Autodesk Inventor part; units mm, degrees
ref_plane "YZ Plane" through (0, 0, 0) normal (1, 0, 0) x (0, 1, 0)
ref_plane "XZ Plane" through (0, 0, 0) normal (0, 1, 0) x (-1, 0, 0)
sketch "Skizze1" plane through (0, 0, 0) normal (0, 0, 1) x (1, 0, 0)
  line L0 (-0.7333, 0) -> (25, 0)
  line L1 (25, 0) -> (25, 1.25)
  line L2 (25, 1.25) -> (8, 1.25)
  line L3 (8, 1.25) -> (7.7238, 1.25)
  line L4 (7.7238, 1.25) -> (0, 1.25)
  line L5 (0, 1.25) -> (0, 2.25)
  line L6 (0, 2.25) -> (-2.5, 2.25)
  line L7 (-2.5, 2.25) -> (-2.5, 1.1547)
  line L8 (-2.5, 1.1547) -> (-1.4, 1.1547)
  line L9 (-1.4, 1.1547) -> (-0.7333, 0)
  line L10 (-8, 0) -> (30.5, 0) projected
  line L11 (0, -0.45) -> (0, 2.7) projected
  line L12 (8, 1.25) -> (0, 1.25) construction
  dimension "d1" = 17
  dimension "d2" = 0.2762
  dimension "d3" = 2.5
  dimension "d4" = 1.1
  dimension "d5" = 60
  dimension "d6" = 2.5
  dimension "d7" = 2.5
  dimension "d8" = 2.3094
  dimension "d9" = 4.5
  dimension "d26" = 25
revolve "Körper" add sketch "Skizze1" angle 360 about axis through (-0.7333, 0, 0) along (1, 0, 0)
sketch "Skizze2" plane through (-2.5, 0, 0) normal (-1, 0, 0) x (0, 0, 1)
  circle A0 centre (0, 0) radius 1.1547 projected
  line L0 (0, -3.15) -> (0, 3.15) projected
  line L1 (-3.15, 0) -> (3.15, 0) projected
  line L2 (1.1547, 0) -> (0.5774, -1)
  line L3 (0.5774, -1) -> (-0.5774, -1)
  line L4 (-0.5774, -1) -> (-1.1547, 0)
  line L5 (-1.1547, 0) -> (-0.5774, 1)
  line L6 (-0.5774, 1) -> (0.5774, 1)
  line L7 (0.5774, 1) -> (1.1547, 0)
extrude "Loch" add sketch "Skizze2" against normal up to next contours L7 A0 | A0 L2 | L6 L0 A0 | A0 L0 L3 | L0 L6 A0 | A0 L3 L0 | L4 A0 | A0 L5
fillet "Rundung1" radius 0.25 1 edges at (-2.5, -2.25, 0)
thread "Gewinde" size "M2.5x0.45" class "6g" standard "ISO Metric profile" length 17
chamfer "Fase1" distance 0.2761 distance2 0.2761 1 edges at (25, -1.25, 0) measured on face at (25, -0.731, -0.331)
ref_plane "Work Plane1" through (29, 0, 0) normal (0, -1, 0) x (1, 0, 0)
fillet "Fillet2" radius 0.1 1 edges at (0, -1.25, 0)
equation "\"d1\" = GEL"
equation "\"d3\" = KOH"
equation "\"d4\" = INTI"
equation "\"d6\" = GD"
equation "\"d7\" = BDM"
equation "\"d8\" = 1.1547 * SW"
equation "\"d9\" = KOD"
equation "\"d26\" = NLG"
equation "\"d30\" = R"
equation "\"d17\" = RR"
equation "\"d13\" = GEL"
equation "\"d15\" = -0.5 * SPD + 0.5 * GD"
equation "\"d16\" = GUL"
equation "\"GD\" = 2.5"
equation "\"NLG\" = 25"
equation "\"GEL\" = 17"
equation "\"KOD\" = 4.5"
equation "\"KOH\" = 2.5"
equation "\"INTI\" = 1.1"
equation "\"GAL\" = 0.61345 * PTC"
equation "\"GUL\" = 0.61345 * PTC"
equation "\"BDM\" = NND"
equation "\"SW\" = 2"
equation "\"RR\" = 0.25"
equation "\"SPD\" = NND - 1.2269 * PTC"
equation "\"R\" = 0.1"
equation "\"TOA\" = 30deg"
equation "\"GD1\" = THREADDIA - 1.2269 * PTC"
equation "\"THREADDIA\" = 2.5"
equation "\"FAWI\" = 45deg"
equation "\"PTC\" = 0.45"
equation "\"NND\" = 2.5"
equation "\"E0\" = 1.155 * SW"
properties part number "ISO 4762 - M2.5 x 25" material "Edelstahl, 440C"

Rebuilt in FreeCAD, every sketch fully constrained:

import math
import FreeCAD as App
import Part
import Sketcher
from FreeCAD import Vector
Q = App.Units.Quantity


def edges_at(feature, points):
    """Names of the edges that pass closest to the given points."""
    edges = feature.Shape.Edges
    near = lambda p: min(range(len(edges)), key=lambda i: edges[i].distToShape(Part.Vertex(*p))[0])
    return sorted({f"Edge{near(p) + 1}" for p in points})


def add_polygon(sketch, points):
    """Adds a closed chain of lines whose ends are joined by coincident constraints."""
    first, n = sketch.GeometryCount, len(points)
    for a, b in zip(points, points[1:] + points[:1]):
        sketch.addGeometry(Part.LineSegment(App.Vector(*a, 0), App.Vector(*b, 0)), False)
    for i in range(n):
        sketch.addConstraint(Sketcher.Constraint("Coincident", first + i, 2, first + (i + 1) % n, 1))

doc = App.newDocument("Part")
params = doc.addObject("Spreadsheet::Sheet", "Params")
for row, (alias, value) in enumerate([
    ("sketch1_width", "25 mm"),
    ("sketch1_width2", "2.5 mm"),
    ("sketch1_width3", "1.1 mm"),
    ("sketch1_height", "1 mm"),
    ("sketch1_height2", "1.25 mm"),
    ("revolution_angle", "360 deg"),
    ("pad1_length", "1.1893 mm"),
    ("fillet_radius", "0.25 mm"),
    ("chamfer_size", "0.2761 mm"),
    ("chamfer_size2", "0.2761 mm"),
    ("fillet2_radius", "0.1 mm"),
], start=1):
    params.set(f"A{row}", alias)
    params.set(f"B{row}", "=" + value)
    params.setAlias(f"B{row}", alias)

body = doc.addObject("PartDesign::Body", "Body")

# Sketch on XY plane
sketch1 = body.newObject("Sketcher::SketchObject", "Sketch")
sketch1.AttachmentSupport = (doc.getObject("XY_Plane"), [""])
sketch1.MapMode = "FlatFace"
add_polygon(sketch1, [(-1.4, 1.1547), (-0.7333, 0), (25, 0), (25, 1.25), (0, 1.25), (0, 2.25), (-2.5, 2.25), (-2.5, 1.1547)])  # lines 0-7
sketch1.addConstraint([
    Sketcher.Constraint("Horizontal", 1),
    Sketcher.Constraint("Vertical", 2),
    Sketcher.Constraint("Horizontal", 3),
    Sketcher.Constraint("Vertical", 4),
    Sketcher.Constraint("Horizontal", 5),
    Sketcher.Constraint("Vertical", 6),
    Sketcher.Constraint("Horizontal", 7),
    Sketcher.Constraint("PointOnObject", 0, 2, -1),
    Sketcher.Constraint("PointOnObject", 3, 2, -2),
    Sketcher.Constraint("DistanceX", 3, 2, 3, 1, Q("25 mm")),
    Sketcher.Constraint("DistanceX", 5, 2, 5, 1, Q("2.5 mm")),
    Sketcher.Constraint("DistanceX", 7, 1, 7, 2, Q("1.1 mm")),
    Sketcher.Constraint("DistanceY", 4, 1, 4, 2, Q("1 mm")),
    Sketcher.Constraint("DistanceY", 2, 1, 2, 2, Q("1.25 mm")),
    Sketcher.Constraint("DistanceX", 1, 1, 1, 2, Q("25.7333 mm")),
    Sketcher.Constraint("DistanceY", 6, 2, 6, 1, Q("1.0953 mm")),
])
sketch1.setExpression("Constraints[17]", "Params.sketch1_width")
sketch1.setExpression("Constraints[18]", "Params.sketch1_width2")
sketch1.setExpression("Constraints[19]", "Params.sketch1_width3")
sketch1.setExpression("Constraints[20]", "Params.sketch1_height")
sketch1.setExpression("Constraints[21]", "Params.sketch1_height2")
revolution = body.newObject("PartDesign::Revolution", "Revolution")
revolution.Profile = sketch1
revolution.ReferenceAxis = (sketch1, ["H_Axis"])
revolution.setExpression("Angle", "Params.revolution_angle")

# Sketch on YZ plane
sketch2 = body.newObject("Sketcher::SketchObject", "Sketch001")
sketch2.AttachmentSupport = (doc.getObject("YZ_Plane"), [""])
sketch2.MapMode = "FlatFace"
sketch2.AttachmentOffset = App.Placement(Vector(0, 0, -2.5), App.Rotation())
sketch2.addGeometry([
    Part.LineSegment(Vector(1, 0.5774, 0), Vector(0, 1.1547, 0)),  # 0
    Part.ArcOfCircle(Part.Circle(Vector(0, 0, 0), Vector(0, 0, 1), 1.1547), math.radians(30.002137), math.radians(90)),  # 1
    Part.ArcOfCircle(Part.Circle(Vector(0, 0, 0), Vector(0, 0, 1), 1.1547), math.radians(90), math.radians(149.997863)),  # 2
    Part.LineSegment(Vector(0, 1.1547, 0), Vector(-1, 0.5774, 0)),  # 3
    Part.ArcOfCircle(Part.Circle(Vector(0, 0, 0), Vector(0, 0, 1), 1.1547), math.radians(-30.002137), math.radians(30.002137)),  # 4
    Part.LineSegment(Vector(1, 0.5774, 0), Vector(1, -0.5774, 0)),  # 5
    Part.LineSegment(Vector(-1, 0.5774, 0), Vector(-1, -0.5774, 0)),  # 6
    Part.ArcOfCircle(Part.Circle(Vector(0, 0, 0), Vector(0, 0, 1), 1.1547), math.radians(149.997863), math.radians(210.002137)),  # 7
    Part.LineSegment(Vector(-1, -0.5774, 0), Vector(0, -1.1547, 0)),  # 8
    Part.ArcOfCircle(Part.Circle(Vector(0, 0, 0), Vector(0, 0, 1), 1.1547), math.radians(-149.997863), math.radians(-90)),  # 9
    Part.ArcOfCircle(Part.Circle(Vector(0, 0, 0), Vector(0, 0, 1), 1.1547), math.radians(-90), math.radians(-30.002137)),  # 10
    Part.LineSegment(Vector(0, -1.1547, 0), Vector(1, -0.5774, 0)),  # 11
], False)
sketch2.addConstraint([
    Sketcher.Constraint("Coincident", 0, 1, 1, 1),
    Sketcher.Constraint("Coincident", 1, 2, 0, 2),
    Sketcher.Constraint("Coincident", 2, 1, 3, 1),
    Sketcher.Constraint("Coincident", 3, 2, 2, 2),
    Sketcher.Constraint("Coincident", 4, 1, 5, 2),
    Sketcher.Constraint("Coincident", 5, 1, 4, 2),
    Sketcher.Constraint("Coincident", 6, 1, 7, 1),
    Sketcher.Constraint("Coincident", 7, 2, 6, 2),
    Sketcher.Constraint("Coincident", 8, 1, 9, 1),
    Sketcher.Constraint("Coincident", 9, 2, 8, 2),
    Sketcher.Constraint("Coincident", 10, 1, 11, 1),
    Sketcher.Constraint("Coincident", 11, 2, 10, 2),
    Sketcher.Constraint("Vertical", 5),
    Sketcher.Constraint("Vertical", 6),
    Sketcher.Constraint("Coincident", 1, 3, -1, 1),
    Sketcher.Constraint("Coincident", 2, 3, -1, 1),
    Sketcher.Constraint("Coincident", 4, 3, -1, 1),
    Sketcher.Constraint("Coincident", 7, 3, -1, 1),
    Sketcher.Constraint("Coincident", 9, 3, -1, 1),
    Sketcher.Constraint("Coincident", 10, 3, -1, 1),
    Sketcher.Constraint("Coincident", 2, 1, 1, 2),
    Sketcher.Constraint("Coincident", 5, 1, 0, 1),
    Sketcher.Constraint("Coincident", 6, 1, 3, 2),
    Sketcher.Constraint("Coincident", 8, 1, 7, 2),
    Sketcher.Constraint("Coincident", 10, 1, 9, 2),
    Sketcher.Constraint("PointOnObject", 1, 2, -2),
    Sketcher.Constraint("PointOnObject", 9, 2, -2),
    Sketcher.Constraint("Parallel", 0, 8),
    Sketcher.Constraint("Parallel", 3, 11),
    Sketcher.Constraint("DistanceX", -1, 1, 0, 1, Q("1 mm")),
    Sketcher.Constraint("Radius", 1, Q("1.1547 mm")),
])
pad1 = body.newObject("PartDesign::Pad", "Pad")
pad1.Profile = sketch2
pad1.setExpression("Length", "Params.pad1_length")
doc.recompute()

fillet = body.newObject("PartDesign::Fillet", "Fillet")
fillet.Base = (pad1, edges_at(pad1, [(-2.5, -2.25, 0)]))
fillet.setExpression("Radius", "Params.fillet_radius")
doc.recompute()

chamfer = body.newObject("PartDesign::Chamfer", "Chamfer")
chamfer.Base = (fillet, edges_at(fillet, [(25, -1.25, 0)]))
chamfer.ChamferType = "Two distances"
chamfer.setExpression("Size", "Params.chamfer_size")
chamfer.setExpression("Size2", "Params.chamfer_size2")
doc.recompute()

fillet2 = body.newObject("PartDesign::Fillet", "Fillet001")
fillet2.Base = (chamfer, edges_at(chamfer, [(0, -1.25, 0)]))
fillet2.setExpression("Radius", "Params.fillet2_radius")

doc.recompute()
